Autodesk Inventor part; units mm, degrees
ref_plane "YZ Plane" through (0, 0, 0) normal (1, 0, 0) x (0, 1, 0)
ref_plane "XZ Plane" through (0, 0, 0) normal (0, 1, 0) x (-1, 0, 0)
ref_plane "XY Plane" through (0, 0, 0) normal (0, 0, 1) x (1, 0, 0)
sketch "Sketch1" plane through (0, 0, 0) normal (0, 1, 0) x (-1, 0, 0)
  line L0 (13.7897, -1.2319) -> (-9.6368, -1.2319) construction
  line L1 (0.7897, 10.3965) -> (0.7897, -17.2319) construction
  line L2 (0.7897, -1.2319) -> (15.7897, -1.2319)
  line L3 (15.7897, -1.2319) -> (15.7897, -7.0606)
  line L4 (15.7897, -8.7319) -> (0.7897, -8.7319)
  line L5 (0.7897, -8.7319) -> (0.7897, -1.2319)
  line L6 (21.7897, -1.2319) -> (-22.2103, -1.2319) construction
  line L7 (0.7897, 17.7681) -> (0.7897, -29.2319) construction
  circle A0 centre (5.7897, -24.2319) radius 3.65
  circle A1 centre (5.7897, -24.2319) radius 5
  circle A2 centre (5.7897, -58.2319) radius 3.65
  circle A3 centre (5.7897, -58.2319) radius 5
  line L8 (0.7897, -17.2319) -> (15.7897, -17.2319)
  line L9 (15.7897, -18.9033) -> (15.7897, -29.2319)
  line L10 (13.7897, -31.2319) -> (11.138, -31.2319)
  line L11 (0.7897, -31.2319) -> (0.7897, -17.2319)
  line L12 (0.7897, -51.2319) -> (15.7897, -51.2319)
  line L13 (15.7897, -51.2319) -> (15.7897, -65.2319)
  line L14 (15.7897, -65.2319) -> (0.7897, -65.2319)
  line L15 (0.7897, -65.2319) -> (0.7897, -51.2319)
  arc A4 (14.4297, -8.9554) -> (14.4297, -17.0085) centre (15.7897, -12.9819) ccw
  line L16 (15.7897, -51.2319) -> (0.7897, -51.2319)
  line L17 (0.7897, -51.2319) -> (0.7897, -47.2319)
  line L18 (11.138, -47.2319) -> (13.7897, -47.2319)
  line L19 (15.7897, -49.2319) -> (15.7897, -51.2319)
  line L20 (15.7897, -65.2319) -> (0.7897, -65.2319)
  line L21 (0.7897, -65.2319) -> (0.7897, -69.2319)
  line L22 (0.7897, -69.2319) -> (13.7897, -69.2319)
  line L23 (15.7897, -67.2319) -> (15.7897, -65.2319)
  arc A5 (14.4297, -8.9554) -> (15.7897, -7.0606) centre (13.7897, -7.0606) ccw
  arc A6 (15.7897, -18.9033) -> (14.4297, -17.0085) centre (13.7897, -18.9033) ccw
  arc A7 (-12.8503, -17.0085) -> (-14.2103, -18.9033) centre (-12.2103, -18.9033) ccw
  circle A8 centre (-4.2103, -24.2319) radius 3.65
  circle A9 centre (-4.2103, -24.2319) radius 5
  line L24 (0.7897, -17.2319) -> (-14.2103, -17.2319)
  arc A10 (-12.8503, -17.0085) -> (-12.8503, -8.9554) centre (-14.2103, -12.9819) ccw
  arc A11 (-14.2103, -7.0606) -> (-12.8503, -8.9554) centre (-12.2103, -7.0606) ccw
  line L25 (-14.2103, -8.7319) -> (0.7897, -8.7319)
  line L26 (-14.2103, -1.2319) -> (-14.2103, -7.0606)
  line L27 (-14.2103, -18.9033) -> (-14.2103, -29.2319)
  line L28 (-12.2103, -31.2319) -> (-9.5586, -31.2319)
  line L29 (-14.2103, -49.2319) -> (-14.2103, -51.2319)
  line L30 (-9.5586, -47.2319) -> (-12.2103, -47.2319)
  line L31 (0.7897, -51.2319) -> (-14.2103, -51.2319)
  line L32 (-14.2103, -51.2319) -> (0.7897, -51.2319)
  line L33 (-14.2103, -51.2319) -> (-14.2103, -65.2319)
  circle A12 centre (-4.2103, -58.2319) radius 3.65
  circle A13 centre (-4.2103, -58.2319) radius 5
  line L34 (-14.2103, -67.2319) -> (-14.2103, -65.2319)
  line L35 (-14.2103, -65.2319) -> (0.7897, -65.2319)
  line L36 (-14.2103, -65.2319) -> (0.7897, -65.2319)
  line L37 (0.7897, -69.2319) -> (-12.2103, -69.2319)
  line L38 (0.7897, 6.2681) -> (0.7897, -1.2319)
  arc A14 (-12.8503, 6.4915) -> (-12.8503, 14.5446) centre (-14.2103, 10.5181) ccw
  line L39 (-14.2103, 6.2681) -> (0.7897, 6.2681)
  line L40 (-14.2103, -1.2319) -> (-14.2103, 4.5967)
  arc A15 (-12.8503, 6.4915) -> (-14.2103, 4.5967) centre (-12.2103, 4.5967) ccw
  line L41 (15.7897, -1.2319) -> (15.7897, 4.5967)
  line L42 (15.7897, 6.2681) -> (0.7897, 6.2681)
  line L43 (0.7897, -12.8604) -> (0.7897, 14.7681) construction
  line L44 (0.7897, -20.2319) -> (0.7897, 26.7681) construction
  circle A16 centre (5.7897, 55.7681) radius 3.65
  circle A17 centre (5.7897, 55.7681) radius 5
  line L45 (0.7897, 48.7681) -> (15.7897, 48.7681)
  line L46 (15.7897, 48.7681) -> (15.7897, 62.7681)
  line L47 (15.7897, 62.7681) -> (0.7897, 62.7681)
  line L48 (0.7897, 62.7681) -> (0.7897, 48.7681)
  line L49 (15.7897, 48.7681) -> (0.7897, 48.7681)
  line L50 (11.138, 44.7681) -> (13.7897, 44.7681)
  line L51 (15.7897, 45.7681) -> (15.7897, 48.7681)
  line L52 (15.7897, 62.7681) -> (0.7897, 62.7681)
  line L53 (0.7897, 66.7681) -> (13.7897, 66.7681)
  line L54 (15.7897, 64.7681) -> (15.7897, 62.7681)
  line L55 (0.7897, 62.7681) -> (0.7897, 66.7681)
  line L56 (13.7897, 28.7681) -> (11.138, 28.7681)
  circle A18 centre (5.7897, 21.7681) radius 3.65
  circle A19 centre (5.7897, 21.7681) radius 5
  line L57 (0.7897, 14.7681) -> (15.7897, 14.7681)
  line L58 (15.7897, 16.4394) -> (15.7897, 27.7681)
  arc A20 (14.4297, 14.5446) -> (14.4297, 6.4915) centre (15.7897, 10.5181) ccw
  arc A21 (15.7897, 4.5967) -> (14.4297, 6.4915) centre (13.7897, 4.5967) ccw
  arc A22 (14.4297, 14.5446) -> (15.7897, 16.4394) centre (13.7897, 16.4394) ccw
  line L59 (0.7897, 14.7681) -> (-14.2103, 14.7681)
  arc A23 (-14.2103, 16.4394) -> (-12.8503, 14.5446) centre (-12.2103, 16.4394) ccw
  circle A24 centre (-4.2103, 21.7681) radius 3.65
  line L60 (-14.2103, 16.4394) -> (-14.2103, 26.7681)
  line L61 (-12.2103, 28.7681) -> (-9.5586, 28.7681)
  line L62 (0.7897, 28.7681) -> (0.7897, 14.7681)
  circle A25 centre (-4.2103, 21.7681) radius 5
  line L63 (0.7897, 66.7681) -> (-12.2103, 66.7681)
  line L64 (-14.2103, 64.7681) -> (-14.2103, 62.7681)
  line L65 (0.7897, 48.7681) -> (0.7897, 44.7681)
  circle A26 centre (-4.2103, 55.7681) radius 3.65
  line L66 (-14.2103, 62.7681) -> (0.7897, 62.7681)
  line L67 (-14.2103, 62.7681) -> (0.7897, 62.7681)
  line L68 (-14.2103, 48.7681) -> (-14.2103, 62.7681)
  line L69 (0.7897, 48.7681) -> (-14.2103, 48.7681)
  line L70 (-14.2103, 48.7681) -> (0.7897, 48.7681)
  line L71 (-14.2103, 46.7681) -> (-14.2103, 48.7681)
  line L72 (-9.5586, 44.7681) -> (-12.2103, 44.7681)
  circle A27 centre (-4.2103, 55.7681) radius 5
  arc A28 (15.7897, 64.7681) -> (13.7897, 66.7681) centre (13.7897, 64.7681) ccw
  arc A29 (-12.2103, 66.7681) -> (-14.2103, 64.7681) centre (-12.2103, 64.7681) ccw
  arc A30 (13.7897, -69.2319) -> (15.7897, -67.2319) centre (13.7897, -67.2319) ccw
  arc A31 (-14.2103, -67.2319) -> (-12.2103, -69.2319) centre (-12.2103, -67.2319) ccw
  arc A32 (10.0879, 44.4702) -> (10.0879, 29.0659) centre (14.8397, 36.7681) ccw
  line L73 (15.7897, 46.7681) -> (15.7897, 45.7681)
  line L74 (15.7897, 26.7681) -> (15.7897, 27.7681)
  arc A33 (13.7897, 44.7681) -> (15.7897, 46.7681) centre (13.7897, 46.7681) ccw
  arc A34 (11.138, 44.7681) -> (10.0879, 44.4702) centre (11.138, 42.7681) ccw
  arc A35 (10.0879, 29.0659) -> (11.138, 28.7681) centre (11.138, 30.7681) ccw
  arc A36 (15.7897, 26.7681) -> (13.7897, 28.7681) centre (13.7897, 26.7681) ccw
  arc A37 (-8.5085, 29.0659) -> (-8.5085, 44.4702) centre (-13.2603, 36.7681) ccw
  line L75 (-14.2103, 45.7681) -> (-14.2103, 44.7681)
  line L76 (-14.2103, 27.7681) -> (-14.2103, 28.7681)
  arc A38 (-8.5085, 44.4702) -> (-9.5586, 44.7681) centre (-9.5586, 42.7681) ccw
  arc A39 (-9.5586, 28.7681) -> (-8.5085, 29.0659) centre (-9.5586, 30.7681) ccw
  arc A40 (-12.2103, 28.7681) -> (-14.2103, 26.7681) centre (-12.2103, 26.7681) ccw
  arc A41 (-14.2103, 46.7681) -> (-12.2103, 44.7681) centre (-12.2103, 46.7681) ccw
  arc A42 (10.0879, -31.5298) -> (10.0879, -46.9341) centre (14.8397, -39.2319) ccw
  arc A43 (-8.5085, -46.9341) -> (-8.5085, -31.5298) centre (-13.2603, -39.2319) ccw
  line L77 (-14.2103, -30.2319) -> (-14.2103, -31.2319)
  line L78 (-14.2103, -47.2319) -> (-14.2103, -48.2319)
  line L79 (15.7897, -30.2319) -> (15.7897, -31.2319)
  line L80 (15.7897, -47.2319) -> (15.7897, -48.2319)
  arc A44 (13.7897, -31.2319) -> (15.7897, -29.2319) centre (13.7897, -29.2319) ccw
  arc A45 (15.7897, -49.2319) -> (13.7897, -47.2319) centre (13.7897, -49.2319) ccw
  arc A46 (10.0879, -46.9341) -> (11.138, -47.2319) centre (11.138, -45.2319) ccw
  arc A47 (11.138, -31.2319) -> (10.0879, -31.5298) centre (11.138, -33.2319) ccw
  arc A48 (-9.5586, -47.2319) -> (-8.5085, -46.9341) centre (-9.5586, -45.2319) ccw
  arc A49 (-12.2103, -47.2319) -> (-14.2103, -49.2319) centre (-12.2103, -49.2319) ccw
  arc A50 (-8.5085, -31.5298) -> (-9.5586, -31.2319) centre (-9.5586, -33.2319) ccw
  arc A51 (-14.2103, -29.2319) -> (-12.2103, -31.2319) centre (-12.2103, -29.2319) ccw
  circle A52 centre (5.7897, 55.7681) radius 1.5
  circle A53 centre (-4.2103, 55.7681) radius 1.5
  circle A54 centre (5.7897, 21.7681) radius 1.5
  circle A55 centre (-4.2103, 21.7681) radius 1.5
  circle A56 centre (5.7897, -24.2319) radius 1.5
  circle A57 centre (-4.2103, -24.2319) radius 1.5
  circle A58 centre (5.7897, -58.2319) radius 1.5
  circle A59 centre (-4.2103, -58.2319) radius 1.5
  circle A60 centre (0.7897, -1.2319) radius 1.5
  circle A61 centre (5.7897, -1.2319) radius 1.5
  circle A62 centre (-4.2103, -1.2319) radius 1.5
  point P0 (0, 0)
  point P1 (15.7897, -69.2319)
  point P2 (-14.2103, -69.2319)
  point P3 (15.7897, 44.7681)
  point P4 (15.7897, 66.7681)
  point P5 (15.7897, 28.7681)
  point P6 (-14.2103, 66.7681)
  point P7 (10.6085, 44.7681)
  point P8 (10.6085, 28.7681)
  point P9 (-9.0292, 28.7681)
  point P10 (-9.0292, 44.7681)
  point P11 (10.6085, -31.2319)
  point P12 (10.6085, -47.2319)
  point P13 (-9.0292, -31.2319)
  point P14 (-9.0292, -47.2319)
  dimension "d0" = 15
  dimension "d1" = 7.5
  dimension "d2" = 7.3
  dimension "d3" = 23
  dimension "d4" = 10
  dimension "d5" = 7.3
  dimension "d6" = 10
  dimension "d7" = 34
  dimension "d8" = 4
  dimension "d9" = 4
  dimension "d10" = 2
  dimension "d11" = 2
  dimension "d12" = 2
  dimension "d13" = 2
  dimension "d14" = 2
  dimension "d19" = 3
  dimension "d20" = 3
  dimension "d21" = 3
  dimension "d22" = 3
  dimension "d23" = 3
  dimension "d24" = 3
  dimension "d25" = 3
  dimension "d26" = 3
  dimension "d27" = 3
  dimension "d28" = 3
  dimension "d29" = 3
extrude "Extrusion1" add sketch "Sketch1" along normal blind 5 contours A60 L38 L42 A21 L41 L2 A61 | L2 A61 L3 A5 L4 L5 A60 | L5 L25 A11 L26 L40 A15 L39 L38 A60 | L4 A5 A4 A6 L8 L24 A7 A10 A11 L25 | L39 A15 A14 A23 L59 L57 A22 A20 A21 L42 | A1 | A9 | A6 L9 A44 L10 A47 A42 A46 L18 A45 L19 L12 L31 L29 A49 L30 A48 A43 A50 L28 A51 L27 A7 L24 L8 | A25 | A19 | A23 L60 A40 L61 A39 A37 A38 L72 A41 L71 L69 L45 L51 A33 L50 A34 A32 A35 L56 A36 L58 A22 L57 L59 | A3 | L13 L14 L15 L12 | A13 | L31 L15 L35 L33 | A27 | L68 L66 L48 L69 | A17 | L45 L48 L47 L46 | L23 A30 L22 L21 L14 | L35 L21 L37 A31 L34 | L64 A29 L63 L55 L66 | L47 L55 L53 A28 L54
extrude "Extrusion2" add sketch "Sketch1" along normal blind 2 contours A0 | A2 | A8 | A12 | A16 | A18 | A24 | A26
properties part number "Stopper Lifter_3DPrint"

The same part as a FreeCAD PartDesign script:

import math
import FreeCAD as App
import Part
import Sketcher

V = App.Vector

doc = App.newDocument("Part")
body = doc.addObject("PartDesign::Body", "Body")

# Sketch on XZ plane
sketch1 = doc.addObject("Sketcher::SketchObject", "Sketch")
body.addObject(sketch1)
sketch1.AttachmentSupport = (doc.XZ_Plane, [""])
sketch1.MapMode = "FlatFace"
sketch1.addGeometry(Part.ArcOfCircle(Part.Circle(V(-13.8, 4.6, 0), V(0, 0, 1), 2), math.radians(109), math.radians(180)), False)
sketch1.addGeometry(Part.ArcOfCircle(Part.Circle(V(-15.8, 10.5, 0), V(0, 0, 1), 4.2), math.radians(-71), math.radians(71)), False)
sketch1.addGeometry(Part.ArcOfCircle(Part.Circle(V(-13.8, 16.4, 0), V(0, 0, 1), 2), math.radians(180), math.radians(251)), False)
sketch1.addGeometry(Part.LineSegment(V(-15.8, 16.4, 0), V(-15.8, 26.8, 0)), False)
sketch1.addGeometry(Part.ArcOfCircle(Part.Circle(V(-13.8, 26.8, 0), V(0, 0, 1), 2), math.radians(90), math.radians(180)), False)
sketch1.addGeometry(Part.LineSegment(V(-13.8, 28.8, 0), V(-11.1, 28.8, 0)), False)
sketch1.addGeometry(Part.ArcOfCircle(Part.Circle(V(-11.1, 30.8, 0), V(0, 0, 1), 2), math.radians(-90), math.radians(-58)), False)
sketch1.addGeometry(Part.ArcOfCircle(Part.Circle(V(-14.8, 36.8, 0), V(0, 0, 1), 9), math.radians(-58), math.radians(58)), False)
sketch1.addGeometry(Part.ArcOfCircle(Part.Circle(V(-11.1, 42.8, 0), V(0, 0, 1), 2), math.radians(58), math.radians(90)), False)
sketch1.addGeometry(Part.LineSegment(V(-11.1, 44.8, 0), V(-13.8, 44.8, 0)), False)
sketch1.addGeometry(Part.ArcOfCircle(Part.Circle(V(-13.8, 46.8, 0), V(0, 0, 1), 2), math.radians(180), math.radians(270)), False)
sketch1.addGeometry(Part.LineSegment(V(-15.8, 46.8, 0), V(-15.8, 64.8, 0)), False)
sketch1.addGeometry(Part.ArcOfCircle(Part.Circle(V(-13.8, 64.8, 0), V(0, 0, 1), 2), math.radians(90), math.radians(180)), False)
sketch1.addGeometry(Part.LineSegment(V(-13.8, 66.8, 0), V(12.2, 66.8, 0)), False)
sketch1.addGeometry(Part.ArcOfCircle(Part.Circle(V(12.2, 64.8, 0), V(0, 0, 1), 2), math.radians(0), math.radians(90)), False)
sketch1.addGeometry(Part.LineSegment(V(14.2, 64.8, 0), V(14.2, 46.8, 0)), False)
sketch1.addGeometry(Part.ArcOfCircle(Part.Circle(V(12.2, 46.8, 0), V(0, 0, 1), 2), math.radians(-90), math.radians(0)), False)
sketch1.addGeometry(Part.LineSegment(V(12.2, 44.8, 0), V(9.6, 44.8, 0)), False)
sketch1.addGeometry(Part.ArcOfCircle(Part.Circle(V(9.6, 42.8, 0), V(0, 0, 1), 2), math.radians(90), math.radians(122)), False)
sketch1.addGeometry(Part.ArcOfCircle(Part.Circle(V(13.3, 36.8, 0), V(0, 0, 1), 9.1), math.radians(122), math.radians(238)), False)
sketch1.addGeometry(Part.ArcOfCircle(Part.Circle(V(9.6, 30.8, 0), V(0, 0, 1), 2), math.radians(-122), math.radians(-90)), False)
sketch1.addGeometry(Part.LineSegment(V(9.6, 28.8, 0), V(12.2, 28.8, 0)), False)
sketch1.addGeometry(Part.ArcOfCircle(Part.Circle(V(12.2, 26.8, 0), V(0, 0, 1), 2), math.radians(0), math.radians(90)), False)
sketch1.addGeometry(Part.LineSegment(V(14.2, 26.8, 0), V(14.2, 16.4, 0)), False)
sketch1.addGeometry(Part.ArcOfCircle(Part.Circle(V(12.2, 16.4, 0), V(0, 0, 1), 2), math.radians(-71), math.radians(0)), False)
sketch1.addGeometry(Part.ArcOfCircle(Part.Circle(V(14.2, 10.5, 0), V(0, 0, 1), 4.3), math.radians(109), math.radians(251)), False)
sketch1.addGeometry(Part.ArcOfCircle(Part.Circle(V(12.2, 4.6, 0), V(0, 0, 1), 2), math.radians(0), math.radians(71)), False)
sketch1.addGeometry(Part.LineSegment(V(14.2, 4.6, 0), V(14.2, -7.1, 0)), False)
sketch1.addGeometry(Part.ArcOfCircle(Part.Circle(V(12.2, -7.1, 0), V(0, 0, 1), 2), math.radians(-71), math.radians(0)), False)
sketch1.addGeometry(Part.ArcOfCircle(Part.Circle(V(14.2, -13, 0), V(0, 0, 1), 4.3), math.radians(109), math.radians(251)), False)
sketch1.addGeometry(Part.ArcOfCircle(Part.Circle(V(12.2, -18.9, 0), V(0, 0, 1), 2), math.radians(0), math.radians(71)), False)
sketch1.addGeometry(Part.LineSegment(V(14.2, -18.9, 0), V(14.2, -29.2, 0)), False)
sketch1.addGeometry(Part.ArcOfCircle(Part.Circle(V(12.2, -29.2, 0), V(0, 0, 1), 2), math.radians(-90), math.radians(0)), False)
sketch1.addGeometry(Part.LineSegment(V(12.2, -31.2, 0), V(9.6, -31.2, 0)), False)
sketch1.addGeometry(Part.ArcOfCircle(Part.Circle(V(9.6, -33.2, 0), V(0, 0, 1), 2), math.radians(90), math.radians(122)), False)
sketch1.addGeometry(Part.ArcOfCircle(Part.Circle(V(13.3, -39.2, 0), V(0, 0, 1), 9.1), math.radians(122), math.radians(238)), False)
sketch1.addGeometry(Part.ArcOfCircle(Part.Circle(V(9.6, -45.2, 0), V(0, 0, 1), 2), math.radians(-122), math.radians(-90)), False)
sketch1.addGeometry(Part.LineSegment(V(9.6, -47.2, 0), V(12.2, -47.2, 0)), False)
sketch1.addGeometry(Part.ArcOfCircle(Part.Circle(V(12.2, -49.2, 0), V(0, 0, 1), 2), math.radians(0), math.radians(90)), False)
sketch1.addGeometry(Part.LineSegment(V(14.2, -49.2, 0), V(14.2, -67.2, 0)), False)
sketch1.addGeometry(Part.ArcOfCircle(Part.Circle(V(12.2, -67.2, 0), V(0, 0, 1), 2), math.radians(-90), math.radians(0)), False)
sketch1.addGeometry(Part.LineSegment(V(12.2, -69.2, 0), V(-13.8, -69.2, 0)), False)
sketch1.addGeometry(Part.ArcOfCircle(Part.Circle(V(-13.8, -67.2, 0), V(0, 0, 1), 2), math.radians(180), math.radians(270)), False)
sketch1.addGeometry(Part.LineSegment(V(-15.8, -67.2, 0), V(-15.8, -49.2, 0)), False)
sketch1.addGeometry(Part.ArcOfCircle(Part.Circle(V(-13.8, -49.2, 0), V(0, 0, 1), 2), math.radians(90), math.radians(180)), False)
sketch1.addGeometry(Part.LineSegment(V(-13.8, -47.2, 0), V(-11.1, -47.2, 0)), False)
sketch1.addGeometry(Part.ArcOfCircle(Part.Circle(V(-11.1, -45.2, 0), V(0, 0, 1), 2), math.radians(-90), math.radians(-58)), False)
sketch1.addGeometry(Part.ArcOfCircle(Part.Circle(V(-14.8, -39.2, 0), V(0, 0, 1), 9), math.radians(-58), math.radians(58)), False)
sketch1.addGeometry(Part.ArcOfCircle(Part.Circle(V(-11.1, -33.2, 0), V(0, 0, 1), 2), math.radians(58), math.radians(90)), False)
sketch1.addGeometry(Part.LineSegment(V(-11.1, -31.2, 0), V(-13.8, -31.2, 0)), False)
sketch1.addGeometry(Part.ArcOfCircle(Part.Circle(V(-13.8, -29.2, 0), V(0, 0, 1), 2), math.radians(180), math.radians(270)), False)
sketch1.addGeometry(Part.LineSegment(V(-15.8, -29.2, 0), V(-15.8, -18.9, 0)), False)
sketch1.addGeometry(Part.ArcOfCircle(Part.Circle(V(-13.8, -18.9, 0), V(0, 0, 1), 2), math.radians(109), math.radians(180)), False)
sketch1.addGeometry(Part.ArcOfCircle(Part.Circle(V(-15.8, -13, 0), V(0, 0, 1), 4.2), math.radians(-71), math.radians(71)), False)
sketch1.addGeometry(Part.ArcOfCircle(Part.Circle(V(-13.8, -7.1, 0), V(0, 0, 1), 2), math.radians(180), math.radians(251)), False)
sketch1.addGeometry(Part.LineSegment(V(-15.8, -7.1, 0), V(-15.8, 4.6, 0)), False)
sketch1.addGeometry(Part.Circle(V(-0.8, -1.2, 0), V(0, 0, 1), 1.5), False)
sketch1.addGeometry(Part.Circle(V(-5.8, -1.2, 0), V(0, 0, 1), 1.5), False)
sketch1.addGeometry(Part.Circle(V(4.2, -1.2, 0), V(0, 0, 1), 1.5), False)
sketch1.addGeometry(Part.Circle(V(-5.8, 21.8, 0), V(0, 0, 1), 3.6), False)
sketch1.addGeometry(Part.Circle(V(4.2, 21.8, 0), V(0, 0, 1), 3.6), False)
sketch1.addGeometry(Part.Circle(V(-5.8, -24.2, 0), V(0, 0, 1), 3.6), False)
sketch1.addGeometry(Part.Circle(V(4.2, -24.2, 0), V(0, 0, 1), 3.6), False)
sketch1.addGeometry(Part.Circle(V(4.2, 55.8, 0), V(0, 0, 1), 3.6), False)
sketch1.addGeometry(Part.Circle(V(-5.8, 55.8, 0), V(0, 0, 1), 3.6), False)
sketch1.addGeometry(Part.Circle(V(-5.8, -58.2, 0), V(0, 0, 1), 3.6), False)
sketch1.addGeometry(Part.Circle(V(4.2, -58.2, 0), V(0, 0, 1), 3.6), False)
sketch1.addConstraint(Sketcher.Constraint("Tangent", 0, 1, 1, 1))
sketch1.addConstraint(Sketcher.Constraint("Tangent", 1, 2, 2, 2))
sketch1.addConstraint(Sketcher.Constraint("Tangent", 2, 1, 3, 1))
sketch1.addConstraint(Sketcher.Constraint("Tangent", 3, 2, 4, 2))
sketch1.addConstraint(Sketcher.Constraint("Tangent", 4, 1, 5, 1))
sketch1.addConstraint(Sketcher.Constraint("Tangent", 5, 2, 6, 1))
sketch1.addConstraint(Sketcher.Constraint("Tangent", 6, 2, 7, 1))
sketch1.addConstraint(Sketcher.Constraint("Tangent", 7, 2, 8, 1))
sketch1.addConstraint(Sketcher.Constraint("Tangent", 8, 2, 9, 1))
sketch1.addConstraint(Sketcher.Constraint("Tangent", 9, 2, 10, 2))
sketch1.addConstraint(Sketcher.Constraint("Tangent", 10, 1, 11, 1))
sketch1.addConstraint(Sketcher.Constraint("Tangent", 11, 2, 12, 2))
sketch1.addConstraint(Sketcher.Constraint("Tangent", 12, 1, 13, 1))
sketch1.addConstraint(Sketcher.Constraint("Tangent", 13, 2, 14, 2))
sketch1.addConstraint(Sketcher.Constraint("Tangent", 14, 1, 15, 1))
sketch1.addConstraint(Sketcher.Constraint("Tangent", 15, 2, 16, 2))
sketch1.addConstraint(Sketcher.Constraint("Tangent", 16, 1, 17, 1))
sketch1.addConstraint(Sketcher.Constraint("Tangent", 17, 2, 18, 1))
sketch1.addConstraint(Sketcher.Constraint("Tangent", 18, 2, 19, 1))
sketch1.addConstraint(Sketcher.Constraint("Tangent", 19, 2, 20, 1))
sketch1.addConstraint(Sketcher.Constraint("Tangent", 20, 2, 21, 1))
sketch1.addConstraint(Sketcher.Constraint("Tangent", 21, 2, 22, 2))
sketch1.addConstraint(Sketcher.Constraint("Tangent", 22, 1, 23, 1))
sketch1.addConstraint(Sketcher.Constraint("Tangent", 23, 2, 24, 2))
sketch1.addConstraint(Sketcher.Constraint("Tangent", 24, 1, 25, 1))
sketch1.addConstraint(Sketcher.Constraint("Tangent", 25, 2, 26, 2))
sketch1.addConstraint(Sketcher.Constraint("Tangent", 26, 1, 27, 1))
sketch1.addConstraint(Sketcher.Constraint("Tangent", 27, 2, 28, 2))
sketch1.addConstraint(Sketcher.Constraint("Tangent", 28, 1, 29, 1))
sketch1.addConstraint(Sketcher.Constraint("Tangent", 29, 2, 30, 2))
sketch1.addConstraint(Sketcher.Constraint("Tangent", 30, 1, 31, 1))
sketch1.addConstraint(Sketcher.Constraint("Tangent", 31, 2, 32, 2))
sketch1.addConstraint(Sketcher.Constraint("Tangent", 32, 1, 33, 1))
sketch1.addConstraint(Sketcher.Constraint("Tangent", 33, 2, 34, 1))
sketch1.addConstraint(Sketcher.Constraint("Tangent", 34, 2, 35, 1))
sketch1.addConstraint(Sketcher.Constraint("Tangent", 35, 2, 36, 1))
sketch1.addConstraint(Sketcher.Constraint("Tangent", 36, 2, 37, 1))
sketch1.addConstraint(Sketcher.Constraint("Tangent", 37, 2, 38, 2))
sketch1.addConstraint(Sketcher.Constraint("Tangent", 38, 1, 39, 1))
sketch1.addConstraint(Sketcher.Constraint("Tangent", 39, 2, 40, 2))
sketch1.addConstraint(Sketcher.Constraint("Tangent", 40, 1, 41, 1))
sketch1.addConstraint(Sketcher.Constraint("Tangent", 41, 2, 42, 2))
sketch1.addConstraint(Sketcher.Constraint("Tangent", 42, 1, 43, 1))
sketch1.addConstraint(Sketcher.Constraint("Tangent", 43, 2, 44, 2))
sketch1.addConstraint(Sketcher.Constraint("Tangent", 44, 1, 45, 1))
sketch1.addConstraint(Sketcher.Constraint("Tangent", 45, 2, 46, 1))
sketch1.addConstraint(Sketcher.Constraint("Tangent", 46, 2, 47, 1))
sketch1.addConstraint(Sketcher.Constraint("Tangent", 47, 2, 48, 1))
sketch1.addConstraint(Sketcher.Constraint("Tangent", 48, 2, 49, 1))
sketch1.addConstraint(Sketcher.Constraint("Tangent", 49, 2, 50, 2))
sketch1.addConstraint(Sketcher.Constraint("Tangent", 50, 1, 51, 1))
sketch1.addConstraint(Sketcher.Constraint("Tangent", 51, 2, 52, 2))
sketch1.addConstraint(Sketcher.Constraint("Tangent", 52, 1, 53, 1))
sketch1.addConstraint(Sketcher.Constraint("Tangent", 53, 2, 54, 2))
sketch1.addConstraint(Sketcher.Constraint("Tangent", 54, 1, 55, 1))
sketch1.addConstraint(Sketcher.Constraint("Tangent", 55, 2, 0, 2))
sketch1.addConstraint(Sketcher.Constraint("Vertical", 3))
sketch1.addConstraint(Sketcher.Constraint("Horizontal", 5))
sketch1.addConstraint(Sketcher.Constraint("Horizontal", 9))
sketch1.addConstraint(Sketcher.Constraint("Vertical", 11))
sketch1.addConstraint(Sketcher.Constraint("Horizontal", 13))
sketch1.addConstraint(Sketcher.Constraint("Vertical", 15))
sketch1.addConstraint(Sketcher.Constraint("Horizontal", 17))
sketch1.addConstraint(Sketcher.Constraint("Horizontal", 21))
sketch1.addConstraint(Sketcher.Constraint("Vertical", 23))
sketch1.addConstraint(Sketcher.Constraint("Vertical", 27))
sketch1.addConstraint(Sketcher.Constraint("Vertical", 31))
sketch1.addConstraint(Sketcher.Constraint("Horizontal", 33))
sketch1.addConstraint(Sketcher.Constraint("Horizontal", 37))
sketch1.addConstraint(Sketcher.Constraint("Vertical", 39))
sketch1.addConstraint(Sketcher.Constraint("Horizontal", 41))
sketch1.addConstraint(Sketcher.Constraint("Vertical", 43))
sketch1.addConstraint(Sketcher.Constraint("Horizontal", 45))
sketch1.addConstraint(Sketcher.Constraint("Horizontal", 49))
sketch1.addConstraint(Sketcher.Constraint("Vertical", 51))
sketch1.addConstraint(Sketcher.Constraint("Vertical", 55))
sketch1.addConstraint(Sketcher.Constraint("Equal", 0, 2))
sketch1.addConstraint(Sketcher.Constraint("Equal", 2, 4))
sketch1.addConstraint(Sketcher.Constraint("Equal", 4, 6))
sketch1.addConstraint(Sketcher.Constraint("Equal", 6, 8))
sketch1.addConstraint(Sketcher.Constraint("Equal", 8, 10))
sketch1.addConstraint(Sketcher.Constraint("Equal", 10, 12))
sketch1.addConstraint(Sketcher.Constraint("Equal", 12, 14))
sketch1.addConstraint(Sketcher.Constraint("Equal", 14, 16))
sketch1.addConstraint(Sketcher.Constraint("Equal", 16, 18))
sketch1.addConstraint(Sketcher.Constraint("Equal", 7, 19))
sketch1.addConstraint(Sketcher.Constraint("Equal", 18, 20))
sketch1.addConstraint(Sketcher.Constraint("Equal", 20, 22))
sketch1.addConstraint(Sketcher.Constraint("Equal", 22, 24))
sketch1.addConstraint(Sketcher.Constraint("Equal", 1, 25))
sketch1.addConstraint(Sketcher.Constraint("Equal", 24, 26))
sketch1.addConstraint(Sketcher.Constraint("Equal", 26, 28))
sketch1.addConstraint(Sketcher.Constraint("Equal", 25, 29))
sketch1.addConstraint(Sketcher.Constraint("Equal", 28, 30))
sketch1.addConstraint(Sketcher.Constraint("Equal", 30, 32))
sketch1.addConstraint(Sketcher.Constraint("Equal", 32, 34))
sketch1.addConstraint(Sketcher.Constraint("Equal", 19, 35))
sketch1.addConstraint(Sketcher.Constraint("Equal", 34, 36))
sketch1.addConstraint(Sketcher.Constraint("Equal", 36, 38))
sketch1.addConstraint(Sketcher.Constraint("Equal", 38, 40))
sketch1.addConstraint(Sketcher.Constraint("Equal", 40, 42))
sketch1.addConstraint(Sketcher.Constraint("Equal", 42, 44))
sketch1.addConstraint(Sketcher.Constraint("Equal", 44, 46))
sketch1.addConstraint(Sketcher.Constraint("Equal", 35, 47))
sketch1.addConstraint(Sketcher.Constraint("Equal", 46, 48))
sketch1.addConstraint(Sketcher.Constraint("Equal", 48, 50))
sketch1.addConstraint(Sketcher.Constraint("Equal", 50, 52))
sketch1.addConstraint(Sketcher.Constraint("Equal", 29, 53))
sketch1.addConstraint(Sketcher.Constraint("Equal", 52, 54))
sketch1.addConstraint(Sketcher.Constraint("Equal", 56, 57))
sketch1.addConstraint(Sketcher.Constraint("Equal", 57, 58))
sketch1.addConstraint(Sketcher.Constraint("Equal", 59, 60))
sketch1.addConstraint(Sketcher.Constraint("Equal", 60, 61))
sketch1.addConstraint(Sketcher.Constraint("Equal", 61, 62))
sketch1.addConstraint(Sketcher.Constraint("Equal", 62, 63))
sketch1.addConstraint(Sketcher.Constraint("Equal", 63, 64))
sketch1.addConstraint(Sketcher.Constraint("Equal", 64, 65))
sketch1.addConstraint(Sketcher.Constraint("Equal", 65, 66))
sketch1.addConstraint(Sketcher.Constraint("Horizontal", 10, 3, 16, 3))
sketch1.addConstraint(Sketcher.Constraint("Horizontal", 7, 3, 19, 3))
sketch1.addConstraint(Sketcher.Constraint("Horizontal", 6, 3, 20, 3))
sketch1.addConstraint(Sketcher.Constraint("Horizontal", 2, 3, 24, 3))
sketch1.addConstraint(Sketcher.Constraint("Horizontal", 1, 3, 25, 3))
sketch1.addConstraint(Sketcher.Constraint("Horizontal", 0, 3, 26, 3))
sketch1.addConstraint(Sketcher.Constraint("Horizontal", 38, 3, 44, 3))
sketch1.addConstraint(Sketcher.Constraint("Horizontal", 35, 3, 47, 3))
sketch1.addConstraint(Sketcher.Constraint("Horizontal", 34, 3, 48, 3))
sketch1.addConstraint(Sketcher.Constraint("Horizontal", 30, 3, 52, 3))
sketch1.addConstraint(Sketcher.Constraint("Horizontal", 29, 3, 53, 3))
sketch1.addConstraint(Sketcher.Constraint("Horizontal", 28, 3, 54, 3))
sketch1.addConstraint(Sketcher.Constraint("Horizontal", 56, 3, 57, 3))
sketch1.addConstraint(Sketcher.Constraint("Horizontal", 57, 3, 58, 3))
sketch1.addConstraint(Sketcher.Constraint("Horizontal", 59, 3, 60, 3))
sketch1.addConstraint(Sketcher.Constraint("Horizontal", 61, 3, 62, 3))
sketch1.addConstraint(Sketcher.Constraint("Horizontal", 63, 3, 64, 3))
sketch1.addConstraint(Sketcher.Constraint("Horizontal", 65, 3, 66, 3))
sketch1.addConstraint(Sketcher.Constraint("Vertical", 0, 3, 2, 3))
sketch1.addConstraint(Sketcher.Constraint("Vertical", 6, 3, 8, 3))
sketch1.addConstraint(Sketcher.Constraint("Vertical", 4, 3, 10, 3))
sketch1.addConstraint(Sketcher.Constraint("Vertical", 16, 3, 22, 3))
sketch1.addConstraint(Sketcher.Constraint("Vertical", 25, 3, 29, 3))
sketch1.addConstraint(Sketcher.Constraint("Vertical", 28, 3, 30, 3))
sketch1.addConstraint(Sketcher.Constraint("Vertical", 20, 3, 34, 3))
sketch1.addConstraint(Sketcher.Constraint("Vertical", 19, 3, 35, 3))
sketch1.addConstraint(Sketcher.Constraint("Vertical", 34, 3, 36, 3))
sketch1.addConstraint(Sketcher.Constraint("Vertical", 32, 3, 38, 3))
sketch1.addConstraint(Sketcher.Constraint("Vertical", 12, 3, 42, 3))
sketch1.addConstraint(Sketcher.Constraint("Vertical", 8, 3, 46, 3))
sketch1.addConstraint(Sketcher.Constraint("Vertical", 57, 3, 59, 3))
sketch1.addConstraint(Sketcher.Constraint("Vertical", 58, 3, 60, 3))
sketch1.addConstraint(Sketcher.Constraint("Vertical", 59, 3, 61, 3))
sketch1.addConstraint(Sketcher.Constraint("Vertical", 60, 3, 62, 3))
sketch1.addConstraint(Sketcher.Constraint("Vertical", 62, 3, 63, 3))
sketch1.addConstraint(Sketcher.Constraint("Vertical", 61, 3, 64, 3))
sketch1.addConstraint(Sketcher.Constraint("Vertical", 64, 3, 65, 3))
sketch1.addConstraint(Sketcher.Constraint("Vertical", 63, 3, 66, 3))
sketch1.addConstraint(Sketcher.Constraint("Vertical", 53, 3, 2, 1))
sketch1.addConstraint(Sketcher.Constraint("Equal", 9, 17))
sketch1.addConstraint(Sketcher.Constraint("Equal", 23, 31))
sketch1.addConstraint(Sketcher.Constraint("Equal", 15, 39))
sketch1.addConstraint(Sketcher.Constraint("Diameter", 56, 3.0))
sketch1.addConstraint(Sketcher.Constraint("Radius", 0, 2.0))
sketch1.addConstraint(Sketcher.Constraint("Diameter", 59, 7.3))
sketch1.addConstraint(Sketcher.Constraint("DistanceX", 13, 1, 13, 2, 26.0))
sketch1.addConstraint(Sketcher.Constraint("DistanceY", 11, 1, 11, 2, 18.0))
sketch1.addConstraint(Sketcher.Constraint("Radius", 1, 4.25))
sketch1.addConstraint(Sketcher.Constraint("Radius", 7, 9.05))
sketch1.addConstraint(Sketcher.Constraint("DistanceX", 5, 1, 5, 2, 2.6517))
sketch1.addConstraint(Sketcher.Constraint("DistanceY", 3, 1, 3, 2, 10.3287))
sketch1.addConstraint(Sketcher.Constraint("DistanceY", 27, 2, 27, 1, 11.6573))
sketch1.addConstraint(Sketcher.Constraint("DistanceY", -1, 1, 1, 3, 10.518))
sketch1.addConstraint(Sketcher.Constraint("DistanceX", 6, 3, -1, 1, 11.138))
sketch1.addConstraint(Sketcher.Constraint("DistanceY", -1, 1, 7, 3, 36.768))
sketch1.addConstraint(Sketcher.Constraint("DistanceY", 56, 3, -1, 1, 1.232))
sketch1.addConstraint(Sketcher.Constraint("DistanceY", -1, 1, 59, 3, 21.768))
sketch1.addConstraint(Sketcher.Constraint("DistanceY", 61, 3, -1, 1, 24.232))
sketch1.addConstraint(Sketcher.Constraint("DistanceY", -1, 1, 63, 3, 55.768))
sketch1.addConstraint(Sketcher.Constraint("DistanceY", 65, 3, -1, 1, 58.232))
sketch1.addConstraint(Sketcher.Constraint("DistanceX", 56, 3, -1, 1, 0.7897))
sketch1.addConstraint(Sketcher.Constraint("DistanceX", 57, 3, -1, 1, 5.7897))
sketch1.addConstraint(Sketcher.Constraint("DistanceX", -1, 1, 58, 3, 4.2103))
pad1 = doc.addObject("PartDesign::Pad", "Pad")
body.addObject(pad1)
pad1.Profile = sketch1
pad1.Length = 5
pad1.Reversed = True

# Sketch on XZ plane
sketch2 = doc.addObject("Sketcher::SketchObject", "Sketch001")
body.addObject(sketch2)
sketch2.AttachmentSupport = (doc.XZ_Plane, [""])
sketch2.MapMode = "FlatFace"
sketch2.addGeometry(Part.Circle(V(-5.8, -24.2, 0), V(0, 0, 1), 3.6), False)
sketch2.addGeometry(Part.Circle(V(-5.8, -24.2, 0), V(0, 0, 1), 1.5), False)
sketch2.addGeometry(Part.Circle(V(-5.8, -58.2, 0), V(0, 0, 1), 3.6), False)
sketch2.addGeometry(Part.Circle(V(-5.8, -58.2, 0), V(0, 0, 1), 1.5), False)
sketch2.addGeometry(Part.Circle(V(4.2, -24.2, 0), V(0, 0, 1), 3.6), False)
sketch2.addGeometry(Part.Circle(V(4.2, -24.2, 0), V(0, 0, 1), 1.5), False)
sketch2.addGeometry(Part.Circle(V(4.2, -58.2, 0), V(0, 0, 1), 3.6), False)
sketch2.addGeometry(Part.Circle(V(4.2, -58.2, 0), V(0, 0, 1), 1.5), False)
sketch2.addGeometry(Part.Circle(V(-5.8, 55.8, 0), V(0, 0, 1), 3.6), False)
sketch2.addGeometry(Part.Circle(V(-5.8, 55.8, 0), V(0, 0, 1), 1.5), False)
sketch2.addGeometry(Part.Circle(V(-5.8, 21.8, 0), V(0, 0, 1), 3.6), False)
sketch2.addGeometry(Part.Circle(V(-5.8, 21.8, 0), V(0, 0, 1), 1.5), False)
sketch2.addGeometry(Part.Circle(V(4.2, 21.8, 0), V(0, 0, 1), 3.6), False)
sketch2.addGeometry(Part.Circle(V(4.2, 21.8, 0), V(0, 0, 1), 1.5), False)
sketch2.addGeometry(Part.Circle(V(4.2, 55.8, 0), V(0, 0, 1), 3.6), False)
sketch2.addGeometry(Part.Circle(V(4.2, 55.8, 0), V(0, 0, 1), 1.5), False)
sketch2.addConstraint(Sketcher.Constraint("Coincident", 1, 3, 0, 3))
sketch2.addConstraint(Sketcher.Constraint("Coincident", 3, 3, 2, 3))
sketch2.addConstraint(Sketcher.Constraint("Coincident", 5, 3, 4, 3))
sketch2.addConstraint(Sketcher.Constraint("Coincident", 7, 3, 6, 3))
sketch2.addConstraint(Sketcher.Constraint("Coincident", 9, 3, 8, 3))
sketch2.addConstraint(Sketcher.Constraint("Coincident", 11, 3, 10, 3))
sketch2.addConstraint(Sketcher.Constraint("Coincident", 13, 3, 12, 3))
sketch2.addConstraint(Sketcher.Constraint("Coincident", 15, 3, 14, 3))
sketch2.addConstraint(Sketcher.Constraint("Equal", 0, 2))
sketch2.addConstraint(Sketcher.Constraint("Equal", 1, 3))
sketch2.addConstraint(Sketcher.Constraint("Equal", 2, 4))
sketch2.addConstraint(Sketcher.Constraint("Equal", 3, 5))
sketch2.addConstraint(Sketcher.Constraint("Equal", 4, 6))
sketch2.addConstraint(Sketcher.Constraint("Equal", 5, 7))
sketch2.addConstraint(Sketcher.Constraint("Equal", 6, 8))
sketch2.addConstraint(Sketcher.Constraint("Equal", 7, 9))
sketch2.addConstraint(Sketcher.Constraint("Equal", 8, 10))
sketch2.addConstraint(Sketcher.Constraint("Equal", 9, 11))
sketch2.addConstraint(Sketcher.Constraint("Equal", 10, 12))
sketch2.addConstraint(Sketcher.Constraint("Equal", 11, 13))
sketch2.addConstraint(Sketcher.Constraint("Equal", 12, 14))
sketch2.addConstraint(Sketcher.Constraint("Equal", 13, 15))
sketch2.addConstraint(Sketcher.Constraint("Horizontal", 1, 3, 4, 3))
sketch2.addConstraint(Sketcher.Constraint("Horizontal", 3, 3, 6, 3))
sketch2.addConstraint(Sketcher.Constraint("Horizontal", 11, 3, 12, 3))
sketch2.addConstraint(Sketcher.Constraint("Horizontal", 9, 3, 14, 3))
sketch2.addConstraint(Sketcher.Constraint("Vertical", 1, 3, 2, 3))
sketch2.addConstraint(Sketcher.Constraint("Vertical", 5, 3, 6, 3))
sketch2.addConstraint(Sketcher.Constraint("Vertical", 3, 3, 8, 3))
sketch2.addConstraint(Sketcher.Constraint("Vertical", 9, 3, 10, 3))
sketch2.addConstraint(Sketcher.Constraint("Vertical", 7, 3, 12, 3))
sketch2.addConstraint(Sketcher.Constraint("Vertical", 13, 3, 14, 3))
sketch2.addConstraint(Sketcher.Constraint("Diameter", 1, 3.0))
sketch2.addConstraint(Sketcher.Constraint("Diameter", 0, 7.3))
sketch2.addConstraint(Sketcher.Constraint("DistanceY", 2, 3, 0, 3, 34.0))
sketch2.addConstraint(Sketcher.Constraint("DistanceX", 0, 3, 4, 3, 10.0))
sketch2.addConstraint(Sketcher.Constraint("DistanceY", 10, 3, 8, 3, 34.0))
sketch2.addConstraint(Sketcher.Constraint("DistanceY", 0, 3, 8, 3, 80.0))
sketch2.addConstraint(Sketcher.Constraint("DistanceY", 0, 3, -1, 1, 24.232))
sketch2.addConstraint(Sketcher.Constraint("DistanceX", 0, 3, -1, 1, 5.7897))
pad2 = doc.addObject("PartDesign::Pad", "Pad001")
body.addObject(pad2)
pad2.Profile = sketch2
pad2.Length = 2
pad2.Reversed = True

doc.recompute()
